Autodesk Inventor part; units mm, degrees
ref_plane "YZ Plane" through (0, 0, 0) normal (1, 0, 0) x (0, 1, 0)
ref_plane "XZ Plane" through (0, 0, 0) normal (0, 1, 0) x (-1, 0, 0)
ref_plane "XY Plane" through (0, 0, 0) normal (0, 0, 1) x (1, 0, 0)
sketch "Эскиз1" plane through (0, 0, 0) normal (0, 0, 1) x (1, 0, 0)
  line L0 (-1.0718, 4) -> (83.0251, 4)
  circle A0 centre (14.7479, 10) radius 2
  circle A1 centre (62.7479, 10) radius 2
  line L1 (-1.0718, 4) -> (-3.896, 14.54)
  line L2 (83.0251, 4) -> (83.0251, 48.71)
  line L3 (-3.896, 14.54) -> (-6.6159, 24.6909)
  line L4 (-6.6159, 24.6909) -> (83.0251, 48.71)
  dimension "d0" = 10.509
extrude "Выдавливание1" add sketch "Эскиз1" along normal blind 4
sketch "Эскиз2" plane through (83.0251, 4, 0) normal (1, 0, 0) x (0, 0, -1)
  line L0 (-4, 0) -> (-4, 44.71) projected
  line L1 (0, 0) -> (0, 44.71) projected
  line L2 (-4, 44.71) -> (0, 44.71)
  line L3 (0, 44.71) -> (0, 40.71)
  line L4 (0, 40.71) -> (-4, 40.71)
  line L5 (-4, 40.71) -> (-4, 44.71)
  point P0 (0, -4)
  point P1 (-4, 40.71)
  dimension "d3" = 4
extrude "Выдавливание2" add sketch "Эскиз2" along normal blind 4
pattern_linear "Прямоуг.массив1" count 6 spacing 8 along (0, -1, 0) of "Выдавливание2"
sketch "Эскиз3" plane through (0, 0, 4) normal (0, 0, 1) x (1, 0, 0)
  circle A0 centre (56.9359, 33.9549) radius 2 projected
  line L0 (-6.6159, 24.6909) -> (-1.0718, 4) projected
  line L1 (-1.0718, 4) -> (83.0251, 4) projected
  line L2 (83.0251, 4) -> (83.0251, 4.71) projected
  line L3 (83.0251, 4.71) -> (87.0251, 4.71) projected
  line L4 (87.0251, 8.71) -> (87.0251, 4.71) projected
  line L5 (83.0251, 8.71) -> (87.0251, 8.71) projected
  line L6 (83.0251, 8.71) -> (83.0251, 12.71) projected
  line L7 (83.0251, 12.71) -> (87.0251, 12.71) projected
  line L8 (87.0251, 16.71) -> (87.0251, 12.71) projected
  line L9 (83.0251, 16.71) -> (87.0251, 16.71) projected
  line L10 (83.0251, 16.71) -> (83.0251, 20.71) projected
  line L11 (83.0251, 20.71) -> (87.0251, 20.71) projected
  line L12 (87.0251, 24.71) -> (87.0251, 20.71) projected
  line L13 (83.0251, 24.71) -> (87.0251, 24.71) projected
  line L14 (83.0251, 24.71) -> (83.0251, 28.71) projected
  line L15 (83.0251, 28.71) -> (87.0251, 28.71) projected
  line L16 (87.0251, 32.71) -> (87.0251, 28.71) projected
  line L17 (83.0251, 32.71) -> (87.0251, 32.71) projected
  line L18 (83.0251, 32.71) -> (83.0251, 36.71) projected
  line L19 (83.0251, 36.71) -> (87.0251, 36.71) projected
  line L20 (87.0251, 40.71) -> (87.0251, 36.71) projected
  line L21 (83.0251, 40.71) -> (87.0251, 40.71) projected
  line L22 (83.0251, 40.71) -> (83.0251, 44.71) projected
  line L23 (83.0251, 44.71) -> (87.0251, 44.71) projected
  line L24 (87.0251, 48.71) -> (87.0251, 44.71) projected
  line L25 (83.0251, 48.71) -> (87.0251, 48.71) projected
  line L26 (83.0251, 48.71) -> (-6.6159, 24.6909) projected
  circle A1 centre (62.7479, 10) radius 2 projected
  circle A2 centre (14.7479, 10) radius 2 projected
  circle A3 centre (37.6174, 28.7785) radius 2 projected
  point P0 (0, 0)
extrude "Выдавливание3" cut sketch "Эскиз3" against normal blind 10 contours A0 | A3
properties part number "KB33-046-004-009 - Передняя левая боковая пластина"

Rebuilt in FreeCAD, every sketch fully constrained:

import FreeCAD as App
import Part
import Sketcher
from FreeCAD import Vector
Q = App.Units.Quantity


def add_polygon(sketch, points):
    """Adds a closed chain of lines whose ends are joined by coincident constraints."""
    first, n = sketch.GeometryCount, len(points)
    for a, b in zip(points, points[1:] + points[:1]):
        sketch.addGeometry(Part.LineSegment(App.Vector(*a, 0), App.Vector(*b, 0)), False)
    for i in range(n):
        sketch.addConstraint(Sketcher.Constraint("Coincident", first + i, 2, first + (i + 1) % n, 1))

doc = App.newDocument("Part")
params = doc.addObject("Spreadsheet::Sheet", "Params")
for row, (alias, value) in enumerate([
    ("sketch1_diameter", "4 mm"),
    ("sketch1_height", "44.71 mm"),
    ("pad1_length", "4 mm"),
    ("sketch2_width", "4 mm"),
    ("pad2_length", "4 mm"),
    ("linearpattern_pitch", "8 mm"),
    ("sketch3_diameter", "4 mm"),
    ("pocket1_length", "10 mm"),
], start=1):
    params.set(f"A{row}", alias)
    params.set(f"B{row}", "=" + value)
    params.setAlias(f"B{row}", alias)

body = doc.addObject("PartDesign::Body", "Body")

# Sketch on XY plane
sketch1 = body.newObject("Sketcher::SketchObject", "Sketch")
sketch1.AttachmentSupport = (doc.getObject("XY_Plane"), [""])
sketch1.MapMode = "FlatFace"
add_polygon(sketch1, [(-3.9, 14.5), (-1.1, 4), (83, 4), (83, 48.7), (-6.6, 24.7)])  # lines 0-4
sketch1.addGeometry(Part.Circle(Vector(14.7, 10, 0), Vector(0, 0, 1), 2), False)  # 5
sketch1.addGeometry(Part.Circle(Vector(62.7, 10, 0), Vector(0, 0, 1), 2), False)  # 6
sketch1.addConstraint([
    Sketcher.Constraint("Horizontal", 1),
    Sketcher.Constraint("Vertical", 2),
    Sketcher.Constraint("Equal", 5, 6),
    Sketcher.Constraint("Perpendicular", 0, 3),
    Sketcher.Constraint("Perpendicular", 3, 4),
    Sketcher.Constraint("Horizontal", 5, 3, 6, 3),
    Sketcher.Constraint("Diameter", 5, Q("4 mm")),
    Sketcher.Constraint("Angle", 0, Q("-75 deg")),
    Sketcher.Constraint("Distance", 4, Q("10.509 mm")),
    Sketcher.Constraint("DistanceY", -1, 1, 5, 3, Q("10 mm")),
    Sketcher.Constraint("DistanceY", -1, 1, 0, 2, Q("4 mm")),
    Sketcher.Constraint("DistanceX", 5, 3, 6, 3, Q("48 mm")),
    Sketcher.Constraint("DistanceY", 2, 1, 2, 2, Q("44.71 mm")),
    Sketcher.Constraint("DistanceX", 1, 1, 1, 2, Q("84.097 mm")),
    Sketcher.Constraint("DistanceX", -1, 1, 5, 3, Q("14.748 mm")),
    Sketcher.Constraint("DistanceX", -1, 1, 1, 2, Q("83.025 mm")),
])
sketch1.setExpression("Constraints[11]", "Params.sketch1_diameter")
sketch1.setExpression("Constraints[17]", "Params.sketch1_height")
pad1 = body.newObject("PartDesign::Pad", "Pad")
pad1.Profile = sketch1
pad1.setExpression("Length", "Params.pad1_length")

# Sketch on YZ plane
sketch2 = body.newObject("Sketcher::SketchObject", "Sketch001")
sketch2.AttachmentSupport = (doc.getObject("YZ_Plane"), [""])
sketch2.MapMode = "FlatFace"
sketch2.AttachmentOffset = App.Placement(Vector(0, 0, 83.0251), App.Rotation())
add_polygon(sketch2, [(48.7, 4), (44.7, 4), (44.7, 0), (48.7, 0)])  # lines 0-3
sketch2.addConstraint([
    Sketcher.Constraint("Horizontal", 0),
    Sketcher.Constraint("Vertical", 1),
    Sketcher.Constraint("Horizontal", 2),
    Sketcher.Constraint("Vertical", 3),
    Sketcher.Constraint("PointOnObject", 1, 2, -1),
    Sketcher.Constraint("Equal", 2, 1),
    Sketcher.Constraint("DistanceX", 0, 2, 0, 1, Q("4 mm")),
    Sketcher.Constraint("DistanceX", -1, 1, 0, 2, Q("44.71 mm")),
])
sketch2.setExpression("Constraints[10]", "Params.sketch2_width")
pad2 = body.newObject("PartDesign::Pad", "Pad001")
pad2.Profile = sketch2
pad2.setExpression("Length", "Params.pad2_length")
doc.recompute()

linearpattern = body.newObject("PartDesign::LinearPattern", "LinearPattern")
linearpattern.Originals = [pad2]
linearpattern.Direction = (doc.getObject("Y_Axis"), [""])
linearpattern.Mode = "offset"
linearpattern.setExpression("Offset", "Params.linearpattern_pitch")
linearpattern.Occurrences = 6
linearpattern.Reversed = True
body.Tip = linearpattern

# Sketch on XY plane
sketch3 = body.newObject("Sketcher::SketchObject", "Sketch002")
sketch3.AttachmentSupport = (doc.getObject("XY_Plane"), [""])
sketch3.MapMode = "FlatFace"
sketch3.AttachmentOffset = App.Placement(Vector(0, 0, 4), App.Rotation())
sketch3.addGeometry([
    Part.Circle(Vector(56.9, 34, 0), Vector(0, 0, 1), 2),
    Part.Circle(Vector(37.6, 28.8, 0), Vector(0, 0, 1), 2),
], False)
sketch3.addConstraint([
    Sketcher.Constraint("Equal", 0, 1),
    Sketcher.Constraint("Diameter", 0, Q("4 mm")),
    Sketcher.Constraint("DistanceX", -1, 1, 0, 3, Q("56.936 mm")),
    Sketcher.Constraint("DistanceY", -1, 1, 0, 3, Q("33.955 mm")),
    Sketcher.Constraint("DistanceX", -1, 1, 1, 3, Q("37.6174 mm")),
    Sketcher.Constraint("DistanceY", -1, 1, 1, 3, Q("28.7785 mm")),
])
sketch3.setExpression("Constraints[1]", "Params.sketch3_diameter")
pocket1 = body.newObject("PartDesign::Pocket", "Pocket")
pocket1.Profile = sketch3
pocket1.setExpression("Length", "Params.pocket1_length")

doc.recompute()
